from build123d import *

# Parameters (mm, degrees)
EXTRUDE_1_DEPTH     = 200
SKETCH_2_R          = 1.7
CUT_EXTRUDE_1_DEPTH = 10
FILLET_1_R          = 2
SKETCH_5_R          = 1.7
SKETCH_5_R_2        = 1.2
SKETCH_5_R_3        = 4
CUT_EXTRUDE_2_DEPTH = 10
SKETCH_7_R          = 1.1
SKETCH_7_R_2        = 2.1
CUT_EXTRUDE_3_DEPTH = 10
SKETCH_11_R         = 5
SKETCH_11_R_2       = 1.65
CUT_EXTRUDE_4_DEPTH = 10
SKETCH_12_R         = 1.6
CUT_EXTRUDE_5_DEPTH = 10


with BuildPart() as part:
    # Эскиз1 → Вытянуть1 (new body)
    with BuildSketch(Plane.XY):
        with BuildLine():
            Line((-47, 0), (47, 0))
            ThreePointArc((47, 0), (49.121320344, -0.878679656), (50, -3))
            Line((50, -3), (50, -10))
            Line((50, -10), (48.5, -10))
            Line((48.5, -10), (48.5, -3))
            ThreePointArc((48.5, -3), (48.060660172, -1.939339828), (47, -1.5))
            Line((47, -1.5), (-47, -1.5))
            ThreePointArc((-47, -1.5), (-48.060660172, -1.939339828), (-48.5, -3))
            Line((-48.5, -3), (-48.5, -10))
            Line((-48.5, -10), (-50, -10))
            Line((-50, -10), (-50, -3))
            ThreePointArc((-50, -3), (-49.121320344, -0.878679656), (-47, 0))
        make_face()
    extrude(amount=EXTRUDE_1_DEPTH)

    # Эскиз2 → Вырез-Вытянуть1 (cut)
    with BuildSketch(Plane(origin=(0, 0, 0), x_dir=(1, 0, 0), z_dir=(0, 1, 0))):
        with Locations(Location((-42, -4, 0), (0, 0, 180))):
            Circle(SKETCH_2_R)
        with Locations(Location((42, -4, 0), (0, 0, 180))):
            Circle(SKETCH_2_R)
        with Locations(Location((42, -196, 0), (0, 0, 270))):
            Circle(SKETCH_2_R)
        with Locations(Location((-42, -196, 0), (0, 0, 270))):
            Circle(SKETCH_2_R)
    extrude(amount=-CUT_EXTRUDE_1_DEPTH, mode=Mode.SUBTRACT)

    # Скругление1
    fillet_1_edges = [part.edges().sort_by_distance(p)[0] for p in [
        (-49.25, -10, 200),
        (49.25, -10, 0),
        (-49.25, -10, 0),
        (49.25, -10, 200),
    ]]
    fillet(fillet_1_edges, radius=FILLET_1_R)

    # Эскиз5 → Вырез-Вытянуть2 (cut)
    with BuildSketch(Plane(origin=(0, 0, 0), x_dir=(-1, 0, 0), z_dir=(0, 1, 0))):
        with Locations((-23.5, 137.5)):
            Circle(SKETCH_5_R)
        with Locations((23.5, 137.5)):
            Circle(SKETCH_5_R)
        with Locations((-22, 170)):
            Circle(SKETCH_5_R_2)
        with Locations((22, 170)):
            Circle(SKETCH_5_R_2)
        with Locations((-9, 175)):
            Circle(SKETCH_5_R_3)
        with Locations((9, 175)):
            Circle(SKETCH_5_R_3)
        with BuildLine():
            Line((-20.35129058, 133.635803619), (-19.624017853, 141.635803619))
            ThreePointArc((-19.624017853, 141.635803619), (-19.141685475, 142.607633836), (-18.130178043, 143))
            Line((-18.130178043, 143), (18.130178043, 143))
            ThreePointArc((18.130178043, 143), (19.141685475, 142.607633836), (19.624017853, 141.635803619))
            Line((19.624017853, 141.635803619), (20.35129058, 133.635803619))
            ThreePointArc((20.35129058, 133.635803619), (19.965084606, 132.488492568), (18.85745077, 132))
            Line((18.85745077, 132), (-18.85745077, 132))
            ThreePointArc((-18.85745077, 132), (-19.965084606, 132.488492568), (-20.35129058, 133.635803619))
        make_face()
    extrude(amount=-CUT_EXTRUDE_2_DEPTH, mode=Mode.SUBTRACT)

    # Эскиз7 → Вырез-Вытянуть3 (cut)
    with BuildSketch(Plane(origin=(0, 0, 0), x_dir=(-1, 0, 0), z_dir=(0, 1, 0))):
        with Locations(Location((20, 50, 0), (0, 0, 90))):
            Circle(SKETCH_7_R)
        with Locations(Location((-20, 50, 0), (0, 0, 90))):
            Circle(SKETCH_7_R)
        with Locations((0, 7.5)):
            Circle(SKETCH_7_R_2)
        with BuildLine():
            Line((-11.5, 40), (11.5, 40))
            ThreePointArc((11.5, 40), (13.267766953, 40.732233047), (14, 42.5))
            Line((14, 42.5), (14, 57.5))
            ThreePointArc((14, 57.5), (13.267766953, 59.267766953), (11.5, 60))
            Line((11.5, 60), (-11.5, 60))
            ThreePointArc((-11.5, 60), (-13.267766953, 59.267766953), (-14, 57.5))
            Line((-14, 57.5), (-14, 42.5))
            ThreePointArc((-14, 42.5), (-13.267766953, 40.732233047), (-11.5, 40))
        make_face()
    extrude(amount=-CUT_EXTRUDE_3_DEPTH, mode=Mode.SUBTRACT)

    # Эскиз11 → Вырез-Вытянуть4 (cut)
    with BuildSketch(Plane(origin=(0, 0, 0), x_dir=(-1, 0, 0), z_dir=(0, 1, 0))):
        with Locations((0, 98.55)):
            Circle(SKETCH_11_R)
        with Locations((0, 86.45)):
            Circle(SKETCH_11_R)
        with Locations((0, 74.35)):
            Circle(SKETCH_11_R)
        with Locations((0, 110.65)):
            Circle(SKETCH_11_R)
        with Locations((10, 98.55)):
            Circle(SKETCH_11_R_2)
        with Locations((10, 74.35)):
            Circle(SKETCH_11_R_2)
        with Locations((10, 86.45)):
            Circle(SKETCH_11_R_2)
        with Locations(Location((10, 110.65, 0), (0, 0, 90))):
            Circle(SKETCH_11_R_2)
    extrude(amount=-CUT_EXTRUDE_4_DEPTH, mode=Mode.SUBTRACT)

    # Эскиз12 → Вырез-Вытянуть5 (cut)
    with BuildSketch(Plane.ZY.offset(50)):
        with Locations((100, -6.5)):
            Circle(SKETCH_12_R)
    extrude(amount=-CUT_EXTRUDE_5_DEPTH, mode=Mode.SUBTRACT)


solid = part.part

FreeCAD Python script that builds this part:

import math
import FreeCAD as App
import Part
import Sketcher

V = App.Vector


def edges_at(feature, points):
    """Names of the edges that pass closest to the given points."""
    edges = feature.Shape.Edges
    near = lambda p: min(range(len(edges)), key=lambda i: edges[i].distToShape(Part.Vertex(*p))[0])
    return sorted({f"Edge{near(p) + 1}" for p in points})

doc = App.newDocument("Part")
body = doc.addObject("PartDesign::Body", "Body")

# Sketch on XY plane
sketch1 = body.newObject("Sketcher::SketchObject", "Sketch")
sketch1.AttachmentSupport = (doc.getObject("XY_Plane"), [""])
sketch1.MapMode = "FlatFace"
sketch1.addGeometry([
    Part.LineSegment(V(47, 0, 0), V(-47, 0, 0)),  # 0
    Part.ArcOfCircle(Part.Circle(V(-47, -3, 0), V(0, 0, 1), 3), math.radians(90), math.radians(180)),  # 1
    Part.LineSegment(V(-50, -3, 0), V(-50, -10, 0)),  # 2
    Part.LineSegment(V(-50, -10, 0), V(-48.5, -10, 0)),  # 3
    Part.LineSegment(V(-48.5, -10, 0), V(-48.5, -3, 0)),  # 4
    Part.ArcOfCircle(Part.Circle(V(-47, -3, 0), V(0, 0, 1), 1.5), math.radians(90), math.radians(180)),  # 5
    Part.LineSegment(V(-47, -1.5, 0), V(47, -1.5, 0)),  # 6
    Part.ArcOfCircle(Part.Circle(V(47, -3, 0), V(0, 0, 1), 1.5), math.radians(0), math.radians(90)),  # 7
    Part.LineSegment(V(48.5, -3, 0), V(48.5, -10, 0)),  # 8
    Part.LineSegment(V(48.5, -10, 0), V(50, -10, 0)),  # 9
    Part.LineSegment(V(50, -10, 0), V(50, -3, 0)),  # 10
    Part.ArcOfCircle(Part.Circle(V(47, -3, 0), V(0, 0, 1), 3), math.radians(0), math.radians(90)),  # 11
], False)
sketch1.addConstraint([
    Sketcher.Constraint("Tangent", 0, 2, 1, 1),
    Sketcher.Constraint("Tangent", 1, 2, 2, 1),
    Sketcher.Constraint("Coincident", 2, 2, 3, 1),
    Sketcher.Constraint("Coincident", 3, 2, 4, 1),
    Sketcher.Constraint("Tangent", 4, 2, 5, 2),
    Sketcher.Constraint("Tangent", 5, 1, 6, 1),
    Sketcher.Constraint("Tangent", 6, 2, 7, 2),
    Sketcher.Constraint("Tangent", 7, 1, 8, 1),
    Sketcher.Constraint("Coincident", 8, 2, 9, 1),
    Sketcher.Constraint("Coincident", 9, 2, 10, 1),
    Sketcher.Constraint("Tangent", 10, 2, 11, 1),
    Sketcher.Constraint("Tangent", 11, 2, 0, 1),
    Sketcher.Constraint("Horizontal", 0),
    Sketcher.Constraint("Vertical", 2),
    Sketcher.Constraint("Horizontal", 3),
    Sketcher.Constraint("Vertical", 4),
    Sketcher.Constraint("Horizontal", 6),
    Sketcher.Constraint("Vertical", 8),
    Sketcher.Constraint("Horizontal", 9),
    Sketcher.Constraint("Vertical", 10),
    Sketcher.Constraint("Coincident", 5, 3, 1, 3),
    Sketcher.Constraint("Coincident", 11, 3, 7, 3),
    Sketcher.Constraint("Equal", 5, 7),
    Sketcher.Constraint("Symmetric", 0, 2, 11, 2, -1, 1),
    Sketcher.Constraint("Horizontal", 3, 2, 8, 2),
    Sketcher.Constraint("Radius", 1, 3.0),
    Sketcher.Constraint("Radius", 5, 1.5),
    Sketcher.Constraint("DistanceX", 0, 2, 0, 1, 94.0),
    Sketcher.Constraint("DistanceY", 2, 2, 2, 1, 7.0),
])
pad1 = body.newObject("PartDesign::Pad", "Pad")
pad1.Profile = sketch1
pad1.Length = 200

# Sketch on XZ plane
sketch2 = body.newObject("Sketcher::SketchObject", "Sketch001")
sketch2.AttachmentSupport = (doc.getObject("XZ_Plane"), [""])
sketch2.MapMode = "FlatFace"
sketch2.addGeometry([
    Part.Circle(V(-42, 4, 0), V(0, 0, 1), 1.7),
    Part.Circle(V(42, 4, 0), V(0, 0, 1), 1.7),
    Part.Circle(V(42, 196, 0), V(0, 0, 1), 1.7),
    Part.Circle(V(-42, 196, 0), V(0, 0, 1), 1.7),
], False)
sketch2.addConstraint([
    Sketcher.Constraint("Equal", 0, 1),
    Sketcher.Constraint("Equal", 1, 2),
    Sketcher.Constraint("Equal", 2, 3),
    Sketcher.Constraint("Symmetric", 0, 3, 1, 3, -2),
    Sketcher.Constraint("Symmetric", 2, 3, 3, 3, -2),
    Sketcher.Constraint("Vertical", 1, 3, 2, 3),
    Sketcher.Constraint("Diameter", 0, 3.4),
    Sketcher.Constraint("DistanceX", 0, 3, -1, 1, 42.0),
    Sketcher.Constraint("DistanceY", -1, 1, 0, 3, 4.0),
    Sketcher.Constraint("DistanceY", -1, 1, 2, 3, 196.0),
])
pocket1 = body.newObject("PartDesign::Pocket", "Pocket")
pocket1.Profile = sketch2
pocket1.Length = 10
pocket1.Reversed = True
doc.recompute()

fillet = body.newObject("PartDesign::Fillet", "Fillet")
fillet.Base = (pocket1, edges_at(pocket1, [
    (-49.25, -10, 200),
    (49.25, -10, 0),
    (-49.25, -10, 0),
    (49.25, -10, 200),
]))
fillet.Radius = 2

# Sketch on XZ plane
sketch3 = body.newObject("Sketcher::SketchObject", "Sketch002")
sketch3.AttachmentSupport = (doc.getObject("XZ_Plane"), [""])
sketch3.MapMode = "FlatFace"
sketch3.addGeometry([
    Part.Circle(V(23.5, 137.5, 0), V(0, 0, 1), 1.7),  # 0
    Part.Circle(V(-23.5, 137.5, 0), V(0, 0, 1), 1.7),  # 1
    Part.Circle(V(22, 170, 0), V(0, 0, 1), 1.2),  # 2
    Part.Circle(V(-22, 170, 0), V(0, 0, 1), 1.2),  # 3
    Part.Circle(V(9, 175, 0), V(0, 0, 1), 4),  # 4
    Part.Circle(V(-9, 175, 0), V(0, 0, 1), 4),  # 5
    Part.LineSegment(V(19.624018, 141.635804, 0), V(20.351291, 133.635804, 0)),  # 6
    Part.ArcOfCircle(Part.Circle(V(18.857451, 133.5, 0), V(0, 0, 1), 1.5), math.radians(-90), math.radians(5.194429)),  # 7
    Part.LineSegment(V(18.857451, 132, 0), V(-18.857451, 132, 0)),  # 8
    Part.ArcOfCircle(Part.Circle(V(-18.857451, 133.5, 0), V(0, 0, 1), 1.5), math.radians(174.805571), math.radians(270)),  # 9
    Part.LineSegment(V(-20.351291, 133.635804, 0), V(-19.624018, 141.635804, 0)),  # 10
    Part.ArcOfCircle(Part.Circle(V(-18.130178, 141.5, 0), V(0, 0, 1), 1.5), math.radians(90), math.radians(174.805571)),  # 11
    Part.LineSegment(V(-18.130178, 143, 0), V(18.130178, 143, 0)),  # 12
    Part.ArcOfCircle(Part.Circle(V(18.130178, 141.5, 0), V(0, 0, 1), 1.5), math.radians(5.194429), math.radians(90)),  # 13
], False)
sketch3.addConstraint([
    Sketcher.Constraint("Tangent", 6, 2, 7, 2),
    Sketcher.Constraint("Tangent", 7, 1, 8, 1),
    Sketcher.Constraint("Tangent", 8, 2, 9, 2),
    Sketcher.Constraint("Tangent", 9, 1, 10, 1),
    Sketcher.Constraint("Tangent", 10, 2, 11, 2),
    Sketcher.Constraint("Tangent", 11, 1, 12, 1),
    Sketcher.Constraint("Tangent", 12, 2, 13, 2),
    Sketcher.Constraint("Tangent", 13, 1, 6, 1),
    Sketcher.Constraint("Horizontal", 8),
    Sketcher.Constraint("Horizontal", 12),
    Sketcher.Constraint("Equal", 0, 1),
    Sketcher.Constraint("Equal", 2, 3),
    Sketcher.Constraint("Equal", 4, 5),
    Sketcher.Constraint("Equal", 7, 9),
    Sketcher.Constraint("Equal", 9, 11),
    Sketcher.Constraint("Equal", 11, 13),
    Sketcher.Constraint("Symmetric", 0, 3, 1, 3, -2),
    Sketcher.Constraint("Symmetric", 2, 3, 3, 3, -2),
    Sketcher.Constraint("Symmetric", 4, 3, 5, 3, -2),
    Sketcher.Constraint("Symmetric", 6, 2, 9, 1, -2),
    Sketcher.Constraint("Diameter", 4, 8.0),
    Sketcher.Constraint("Diameter", 0, 3.4),
    Sketcher.Constraint("Diameter", 2, 2.4),
    Sketcher.Constraint("Radius", 7, 1.5),
    Sketcher.Constraint("DistanceX", -1, 1, 2, 3, 22.0),
    Sketcher.Constraint("DistanceY", -1, 1, 2, 3, 170.0),
    Sketcher.Constraint("DistanceX", -1, 1, 4, 3, 9.0),
    Sketcher.Constraint("DistanceY", -1, 1, 4, 3, 175.0),
    Sketcher.Constraint("DistanceY", -1, 1, 7, 1, 132.0),
    Sketcher.Constraint("DistanceY", -1, 1, 11, 1, 143.0),
    Sketcher.Constraint("DistanceX", 1, 3, 0, 3, 47.0),
    Sketcher.Constraint("DistanceY", 7, 3, 0, 3, 4.0),
    Sketcher.Constraint("DistanceX", 8, 2, 8, 1, 37.714902),
    Sketcher.Constraint("Distance", 6, 8.03299),
])
pocket2 = body.newObject("PartDesign::Pocket", "Pocket001")
pocket2.Profile = sketch3
pocket2.Length = 10
pocket2.Reversed = True

# Sketch on XZ plane
sketch4 = body.newObject("Sketcher::SketchObject", "Sketch003")
sketch4.AttachmentSupport = (doc.getObject("XZ_Plane"), [""])
sketch4.MapMode = "FlatFace"
sketch4.addGeometry([
    Part.Circle(V(-20, 50, 0), V(0, 0, 1), 1.1),  # 0
    Part.Circle(V(20, 50, 0), V(0, 0, 1), 1.1),  # 1
    Part.Circle(V(0, 7.5, 0), V(0, 0, 1), 2.1),  # 2
    Part.LineSegment(V(11.5, 40, 0), V(-11.5, 40, 0)),  # 3
    Part.ArcOfCircle(Part.Circle(V(-11.5, 42.5, 0), V(0, 0, 1), 2.5), math.radians(180), math.radians(270)),  # 4
    Part.LineSegment(V(-14, 42.5, 0), V(-14, 57.5, 0)),  # 5
    Part.ArcOfCircle(Part.Circle(V(-11.5, 57.5, 0), V(0, 0, 1), 2.5), math.radians(90), math.radians(180)),  # 6
    Part.LineSegment(V(-11.5, 60, 0), V(11.5, 60, 0)),  # 7
    Part.ArcOfCircle(Part.Circle(V(11.5, 57.5, 0), V(0, 0, 1), 2.5), math.radians(0), math.radians(90)),  # 8
    Part.LineSegment(V(14, 57.5, 0), V(14, 42.5, 0)),  # 9
    Part.ArcOfCircle(Part.Circle(V(11.5, 42.5, 0), V(0, 0, 1), 2.5), math.radians(-90), math.radians(0)),  # 10
], False)
sketch4.addConstraint([
    Sketcher.Constraint("Tangent", 3, 2, 4, 2),
    Sketcher.Constraint("Tangent", 4, 1, 5, 1),
    Sketcher.Constraint("Tangent", 5, 2, 6, 2),
    Sketcher.Constraint("Tangent", 6, 1, 7, 1),
    Sketcher.Constraint("Tangent", 7, 2, 8, 2),
    Sketcher.Constraint("Tangent", 8, 1, 9, 1),
    Sketcher.Constraint("Tangent", 9, 2, 10, 2),
    Sketcher.Constraint("Tangent", 10, 1, 3, 1),
    Sketcher.Constraint("Horizontal", 3),
    Sketcher.Constraint("Vertical", 5),
    Sketcher.Constraint("Horizontal", 7),
    Sketcher.Constraint("Vertical", 9),
    Sketcher.Constraint("Equal", 0, 1),
    Sketcher.Constraint("Equal", 4, 6),
    Sketcher.Constraint("Equal", 6, 8),
    Sketcher.Constraint("Equal", 8, 10),
    Sketcher.Constraint("Symmetric", 0, 3, 1, 3, -2),
    Sketcher.Constraint("PointOnObject", 2, 3, -2),
    Sketcher.Constraint("Diameter", 0, 2.2),
    Sketcher.Constraint("Diameter", 2, 4.2),
    Sketcher.Constraint("Radius", 4, 2.5),
    Sketcher.Constraint("DistanceX", 3, 2, 3, 1, 23.0),
    Sketcher.Constraint("DistanceY", 5, 1, 5, 2, 15.0),
    Sketcher.Constraint("DistanceX", 0, 3, -1, 1, 20.0),
    Sketcher.Constraint("DistanceY", -1, 1, 0, 3, 50.0),
    Sketcher.Constraint("DistanceY", -1, 1, 3, 2, 40.0),
    Sketcher.Constraint("DistanceX", 4, 1, -1, 1, 14.0),
    Sketcher.Constraint("DistanceY", 2, 3, 4, 3, 35.0),
])
pocket3 = body.newObject("PartDesign::Pocket", "Pocket002")
pocket3.Profile = sketch4
pocket3.Length = 10
pocket3.Reversed = True

# Sketch on XZ plane
sketch5 = body.newObject("Sketcher::SketchObject", "Sketch004")
sketch5.AttachmentSupport = (doc.getObject("XZ_Plane"), [""])
sketch5.MapMode = "FlatFace"
sketch5.addGeometry([
    Part.Circle(V(0, 98.55, 0), V(0, 0, 1), 5),  # 0
    Part.Circle(V(0, 86.45, 0), V(0, 0, 1), 5),  # 1
    Part.Circle(V(0, 74.35, 0), V(0, 0, 1), 5),  # 2
    Part.Circle(V(0, 110.65, 0), V(0, 0, 1), 5),  # 3
    Part.Circle(V(-10, 98.55, 0), V(0, 0, 1), 1.65),  # 4
    Part.Circle(V(-10, 74.35, 0), V(0, 0, 1), 1.65),  # 5
    Part.Circle(V(-10, 86.45, 0), V(0, 0, 1), 1.65),  # 6
    Part.Circle(V(-10, 110.65, 0), V(0, 0, 1), 1.65),  # 7
], False)
sketch5.addConstraint([
    Sketcher.Constraint("Equal", 0, 1),
    Sketcher.Constraint("Equal", 1, 2),
    Sketcher.Constraint("Equal", 2, 3),
    Sketcher.Constraint("Equal", 4, 5),
    Sketcher.Constraint("Equal", 5, 6),
    Sketcher.Constraint("Equal", 6, 7),
    Sketcher.Constraint("PointOnObject", 0, 3, -2),
    Sketcher.Constraint("PointOnObject", 1, 3, -2),
    Sketcher.Constraint("PointOnObject", 2, 3, -2),
    Sketcher.Constraint("PointOnObject", 3, 3, -2),
    Sketcher.Constraint("Horizontal", 0, 3, 4, 3),
    Sketcher.Constraint("Horizontal", 2, 3, 5, 3),
    Sketcher.Constraint("Horizontal", 1, 3, 6, 3),
    Sketcher.Constraint("Horizontal", 3, 3, 7, 3),
    Sketcher.Constraint("Vertical", 4, 3, 5, 3),
    Sketcher.Constraint("Vertical", 5, 3, 6, 3),
    Sketcher.Constraint("Vertical", 6, 3, 7, 3),
    Sketcher.Constraint("Diameter", 0, 10.0),
    Sketcher.Constraint("Diameter", 4, 3.3),
    Sketcher.Constraint("DistanceX", 4, 3, -1, 1, 10.0),
    Sketcher.Constraint("DistanceY", 1, 3, 0, 3, 12.1),
    Sketcher.Constraint("DistanceY", 2, 3, 1, 3, 12.1),
    Sketcher.Constraint("DistanceY", 0, 3, 3, 3, 12.1),
    Sketcher.Constraint("DistanceY", -1, 1, 0, 3, 98.55),
])
pocket4 = body.newObject("PartDesign::Pocket", "Pocket003")
pocket4.Profile = sketch5
pocket4.Length = 10
pocket4.Reversed = True

# Sketch on YZ plane
sketch6 = body.newObject("Sketcher::SketchObject", "Sketch005")
sketch6.AttachmentSupport = (doc.getObject("YZ_Plane"), [""])
sketch6.MapMode = "FlatFace"
sketch6.AttachmentOffset = App.Placement(V(0, 0, -50), App.Rotation())
sketch6.addGeometry(Part.Circle(V(-6.5, 100, 0), V(0, 0, 1), 1.6), False)
sketch6.addConstraint([
    Sketcher.Constraint("Diameter", 0, 3.2),
    Sketcher.Constraint("DistanceY", -1, 1, 0, 3, 100.0),
    Sketcher.Constraint("DistanceX", 0, 3, -1, 1, 6.5),
])
pocket5 = body.newObject("PartDesign::Pocket", "Pocket004")
pocket5.Profile = sketch6
pocket5.Length = 10
pocket5.Reversed = True

doc.recompute()
